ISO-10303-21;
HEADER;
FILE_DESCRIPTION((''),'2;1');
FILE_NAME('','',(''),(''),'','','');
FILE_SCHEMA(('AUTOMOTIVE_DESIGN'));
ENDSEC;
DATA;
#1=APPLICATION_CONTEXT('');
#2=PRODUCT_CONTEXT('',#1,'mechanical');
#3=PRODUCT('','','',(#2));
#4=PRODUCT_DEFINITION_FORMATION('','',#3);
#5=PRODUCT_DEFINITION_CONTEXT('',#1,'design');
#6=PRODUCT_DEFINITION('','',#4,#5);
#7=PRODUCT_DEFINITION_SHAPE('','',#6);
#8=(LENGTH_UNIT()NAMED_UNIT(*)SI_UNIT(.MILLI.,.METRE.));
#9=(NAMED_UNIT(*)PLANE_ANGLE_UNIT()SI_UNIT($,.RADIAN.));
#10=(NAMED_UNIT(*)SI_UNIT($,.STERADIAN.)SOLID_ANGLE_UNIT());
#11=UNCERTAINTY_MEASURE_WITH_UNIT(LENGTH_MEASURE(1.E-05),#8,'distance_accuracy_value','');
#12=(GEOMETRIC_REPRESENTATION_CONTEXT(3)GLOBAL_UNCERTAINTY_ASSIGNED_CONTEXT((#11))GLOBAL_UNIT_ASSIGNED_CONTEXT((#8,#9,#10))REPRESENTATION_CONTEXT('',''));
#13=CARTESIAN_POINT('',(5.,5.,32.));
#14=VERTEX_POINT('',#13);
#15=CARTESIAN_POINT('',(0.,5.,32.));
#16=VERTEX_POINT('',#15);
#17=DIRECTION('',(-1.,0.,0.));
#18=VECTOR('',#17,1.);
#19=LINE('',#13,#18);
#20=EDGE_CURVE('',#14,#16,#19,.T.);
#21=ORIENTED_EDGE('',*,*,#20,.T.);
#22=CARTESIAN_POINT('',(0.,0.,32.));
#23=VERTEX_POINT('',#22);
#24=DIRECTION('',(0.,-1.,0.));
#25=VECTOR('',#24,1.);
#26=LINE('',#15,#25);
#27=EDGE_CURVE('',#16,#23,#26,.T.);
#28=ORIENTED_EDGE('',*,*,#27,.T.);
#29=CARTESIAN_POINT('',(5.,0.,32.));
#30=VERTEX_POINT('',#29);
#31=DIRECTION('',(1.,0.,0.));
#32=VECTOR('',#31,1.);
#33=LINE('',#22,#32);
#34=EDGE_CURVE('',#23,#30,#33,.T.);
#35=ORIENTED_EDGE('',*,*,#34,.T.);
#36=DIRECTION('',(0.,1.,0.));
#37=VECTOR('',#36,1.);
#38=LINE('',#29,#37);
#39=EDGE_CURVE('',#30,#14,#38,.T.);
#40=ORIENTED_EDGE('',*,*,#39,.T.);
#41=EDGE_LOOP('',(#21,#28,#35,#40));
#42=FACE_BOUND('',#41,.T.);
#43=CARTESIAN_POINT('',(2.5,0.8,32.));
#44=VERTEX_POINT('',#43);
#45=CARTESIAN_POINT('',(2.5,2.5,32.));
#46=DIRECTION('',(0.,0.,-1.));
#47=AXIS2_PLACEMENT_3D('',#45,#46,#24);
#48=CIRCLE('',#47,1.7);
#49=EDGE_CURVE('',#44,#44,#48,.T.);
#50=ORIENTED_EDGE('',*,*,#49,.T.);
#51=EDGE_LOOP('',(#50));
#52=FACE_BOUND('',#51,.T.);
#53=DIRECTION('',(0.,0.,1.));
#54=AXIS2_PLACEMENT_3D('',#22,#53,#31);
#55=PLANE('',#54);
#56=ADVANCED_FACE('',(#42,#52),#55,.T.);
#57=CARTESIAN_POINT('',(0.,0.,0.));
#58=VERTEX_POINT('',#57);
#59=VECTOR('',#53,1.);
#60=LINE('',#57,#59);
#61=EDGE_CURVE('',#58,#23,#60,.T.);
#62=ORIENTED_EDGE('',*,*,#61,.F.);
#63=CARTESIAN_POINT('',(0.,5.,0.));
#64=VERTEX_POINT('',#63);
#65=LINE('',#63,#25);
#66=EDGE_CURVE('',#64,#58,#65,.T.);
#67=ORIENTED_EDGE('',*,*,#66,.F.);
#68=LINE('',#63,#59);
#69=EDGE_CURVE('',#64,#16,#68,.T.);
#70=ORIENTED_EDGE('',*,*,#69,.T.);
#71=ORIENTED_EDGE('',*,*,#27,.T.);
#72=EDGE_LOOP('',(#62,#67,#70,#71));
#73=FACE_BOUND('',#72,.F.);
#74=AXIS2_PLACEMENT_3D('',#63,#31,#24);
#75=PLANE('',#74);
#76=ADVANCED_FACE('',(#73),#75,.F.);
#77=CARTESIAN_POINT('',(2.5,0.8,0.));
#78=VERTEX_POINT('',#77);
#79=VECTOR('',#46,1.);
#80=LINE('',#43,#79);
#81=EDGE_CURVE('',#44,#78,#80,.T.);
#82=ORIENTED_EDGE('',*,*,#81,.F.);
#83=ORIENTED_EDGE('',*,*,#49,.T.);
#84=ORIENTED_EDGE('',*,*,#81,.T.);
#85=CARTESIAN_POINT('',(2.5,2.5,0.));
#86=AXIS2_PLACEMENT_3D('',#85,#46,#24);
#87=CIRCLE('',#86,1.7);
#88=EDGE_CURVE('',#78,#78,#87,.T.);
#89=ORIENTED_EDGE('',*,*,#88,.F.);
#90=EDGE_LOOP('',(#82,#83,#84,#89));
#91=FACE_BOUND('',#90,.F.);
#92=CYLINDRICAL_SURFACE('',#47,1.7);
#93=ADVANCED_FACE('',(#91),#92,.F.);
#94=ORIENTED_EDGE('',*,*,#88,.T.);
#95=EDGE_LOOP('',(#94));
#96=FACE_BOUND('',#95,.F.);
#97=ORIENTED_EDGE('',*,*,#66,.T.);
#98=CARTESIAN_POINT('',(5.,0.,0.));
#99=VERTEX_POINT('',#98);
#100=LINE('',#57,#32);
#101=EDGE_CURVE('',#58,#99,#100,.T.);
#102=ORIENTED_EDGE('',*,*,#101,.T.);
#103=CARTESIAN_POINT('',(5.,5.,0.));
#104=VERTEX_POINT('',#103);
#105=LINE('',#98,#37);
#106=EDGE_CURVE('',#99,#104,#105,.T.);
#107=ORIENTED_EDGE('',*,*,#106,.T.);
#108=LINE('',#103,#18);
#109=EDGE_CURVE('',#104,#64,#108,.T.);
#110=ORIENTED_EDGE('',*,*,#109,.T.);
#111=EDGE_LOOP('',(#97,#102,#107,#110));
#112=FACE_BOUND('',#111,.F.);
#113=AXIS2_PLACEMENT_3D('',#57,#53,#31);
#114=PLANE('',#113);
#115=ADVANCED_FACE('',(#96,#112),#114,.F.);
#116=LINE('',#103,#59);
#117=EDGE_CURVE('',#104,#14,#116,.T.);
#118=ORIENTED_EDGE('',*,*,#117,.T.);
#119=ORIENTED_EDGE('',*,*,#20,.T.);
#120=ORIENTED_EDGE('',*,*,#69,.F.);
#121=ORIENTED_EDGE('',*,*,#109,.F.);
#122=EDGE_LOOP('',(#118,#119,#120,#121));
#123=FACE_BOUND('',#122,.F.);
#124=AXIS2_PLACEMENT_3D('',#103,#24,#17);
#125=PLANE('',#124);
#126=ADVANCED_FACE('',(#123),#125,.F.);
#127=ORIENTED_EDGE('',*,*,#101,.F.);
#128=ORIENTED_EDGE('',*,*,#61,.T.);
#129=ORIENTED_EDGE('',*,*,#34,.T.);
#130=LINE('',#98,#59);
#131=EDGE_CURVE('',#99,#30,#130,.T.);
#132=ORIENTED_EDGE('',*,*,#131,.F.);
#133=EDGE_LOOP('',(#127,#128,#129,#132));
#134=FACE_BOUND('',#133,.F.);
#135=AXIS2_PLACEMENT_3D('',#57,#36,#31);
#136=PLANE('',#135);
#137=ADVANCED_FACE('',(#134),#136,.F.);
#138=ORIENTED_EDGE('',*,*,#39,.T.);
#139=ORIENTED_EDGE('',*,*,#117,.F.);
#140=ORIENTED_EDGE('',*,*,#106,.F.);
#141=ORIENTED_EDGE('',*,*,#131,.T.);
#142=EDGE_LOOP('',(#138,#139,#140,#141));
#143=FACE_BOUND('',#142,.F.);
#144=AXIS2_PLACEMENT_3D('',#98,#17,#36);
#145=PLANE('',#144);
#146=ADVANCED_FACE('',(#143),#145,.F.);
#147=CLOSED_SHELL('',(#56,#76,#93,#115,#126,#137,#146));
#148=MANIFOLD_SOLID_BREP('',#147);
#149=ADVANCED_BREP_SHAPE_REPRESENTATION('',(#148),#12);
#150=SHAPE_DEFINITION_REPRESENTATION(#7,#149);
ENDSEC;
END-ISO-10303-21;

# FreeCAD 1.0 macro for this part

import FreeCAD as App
import Part
import Sketcher
from FreeCAD import Vector


def add_polygon(sketch, points):
    """Adds a closed chain of lines whose ends are joined by coincident constraints."""
    first, n = sketch.GeometryCount, len(points)
    for a, b in zip(points, points[1:] + points[:1]):
        sketch.addGeometry(Part.LineSegment(App.Vector(*a, 0), App.Vector(*b, 0)), False)
    for i in range(n):
        sketch.addConstraint(Sketcher.Constraint("Coincident", first + i, 2, first + (i + 1) % n, 1))

doc = App.newDocument("Part")
params = doc.addObject("Spreadsheet::Sheet", "Params")
for row, (alias, value) in enumerate([
    ("sketch1_width", "5 mm"),
    ("pad1_length", "32 mm"),
    ("sketch2_diameter", "3.4 mm"),
    ("hole_diameter", "3.4 mm"),
], start=1):
    params.set(f"A{row}", alias)
    params.set(f"B{row}", "=" + value)
    params.setAlias(f"B{row}", alias)

body = doc.addObject("PartDesign::Body", "Body")

sketch1 = body.newObject("Sketcher::SketchObject", "Sketch")
sketch1.AttachmentSupport = (doc.getObject("XY_Plane"), [""])
sketch1.MapMode = "FlatFace"
add_polygon(sketch1, [(0, 5), (0, 0), (5, 0), (5, 5)])
sketch1.addConstraint(Sketcher.Constraint("Vertical", 0))
sketch1.addConstraint(Sketcher.Constraint("Horizontal", 1))
sketch1.addConstraint(Sketcher.Constraint("Vertical", 2))
sketch1.addConstraint(Sketcher.Constraint("Horizontal", 3))
sketch1.addConstraint(Sketcher.Constraint("Coincident", 0, 2, -1, 1))
sketch1.addConstraint(Sketcher.Constraint("Equal", 3, 0))
sketch1.addConstraint(Sketcher.Constraint("DistanceX", 1, 1, 1, 2, 5.0))
sketch1.setExpression("Constraints[10]", "Params.sketch1_width")
pad1 = body.newObject("PartDesign::Pad", "Pad")
pad1.Profile = sketch1
pad1.setExpression("Length", "Params.pad1_length")

sketch2 = body.newObject("Sketcher::SketchObject", "Sketch001")
sketch2.AttachmentSupport = (doc.getObject("XY_Plane"), [""])
sketch2.MapMode = "FlatFace"
sketch2.AttachmentOffset = App.Placement(Vector(0, 0, 32), App.Rotation())
sketch2.addGeometry(Part.Circle(Vector(2.5, 2.5, 0), Vector(0, 0, 1), 1.7), False)
sketch2.addConstraint(Sketcher.Constraint("Diameter", 0, 3.4))
sketch2.addConstraint(Sketcher.Constraint("DistanceX", -1, 1, 0, 3, 2.5))
sketch2.addConstraint(Sketcher.Constraint("DistanceY", -1, 1, 0, 3, 2.5))
sketch2.setExpression("Constraints[0]", "Params.sketch2_diameter")
doc.recompute()
hole = body.newObject("PartDesign::Hole", "Hole")
hole.Profile = sketch2
hole.ThreadType = "None"
hole.setExpression("Diameter", "Params.hole_diameter")
hole.DepthType = "ThroughAll"

doc.recompute()
